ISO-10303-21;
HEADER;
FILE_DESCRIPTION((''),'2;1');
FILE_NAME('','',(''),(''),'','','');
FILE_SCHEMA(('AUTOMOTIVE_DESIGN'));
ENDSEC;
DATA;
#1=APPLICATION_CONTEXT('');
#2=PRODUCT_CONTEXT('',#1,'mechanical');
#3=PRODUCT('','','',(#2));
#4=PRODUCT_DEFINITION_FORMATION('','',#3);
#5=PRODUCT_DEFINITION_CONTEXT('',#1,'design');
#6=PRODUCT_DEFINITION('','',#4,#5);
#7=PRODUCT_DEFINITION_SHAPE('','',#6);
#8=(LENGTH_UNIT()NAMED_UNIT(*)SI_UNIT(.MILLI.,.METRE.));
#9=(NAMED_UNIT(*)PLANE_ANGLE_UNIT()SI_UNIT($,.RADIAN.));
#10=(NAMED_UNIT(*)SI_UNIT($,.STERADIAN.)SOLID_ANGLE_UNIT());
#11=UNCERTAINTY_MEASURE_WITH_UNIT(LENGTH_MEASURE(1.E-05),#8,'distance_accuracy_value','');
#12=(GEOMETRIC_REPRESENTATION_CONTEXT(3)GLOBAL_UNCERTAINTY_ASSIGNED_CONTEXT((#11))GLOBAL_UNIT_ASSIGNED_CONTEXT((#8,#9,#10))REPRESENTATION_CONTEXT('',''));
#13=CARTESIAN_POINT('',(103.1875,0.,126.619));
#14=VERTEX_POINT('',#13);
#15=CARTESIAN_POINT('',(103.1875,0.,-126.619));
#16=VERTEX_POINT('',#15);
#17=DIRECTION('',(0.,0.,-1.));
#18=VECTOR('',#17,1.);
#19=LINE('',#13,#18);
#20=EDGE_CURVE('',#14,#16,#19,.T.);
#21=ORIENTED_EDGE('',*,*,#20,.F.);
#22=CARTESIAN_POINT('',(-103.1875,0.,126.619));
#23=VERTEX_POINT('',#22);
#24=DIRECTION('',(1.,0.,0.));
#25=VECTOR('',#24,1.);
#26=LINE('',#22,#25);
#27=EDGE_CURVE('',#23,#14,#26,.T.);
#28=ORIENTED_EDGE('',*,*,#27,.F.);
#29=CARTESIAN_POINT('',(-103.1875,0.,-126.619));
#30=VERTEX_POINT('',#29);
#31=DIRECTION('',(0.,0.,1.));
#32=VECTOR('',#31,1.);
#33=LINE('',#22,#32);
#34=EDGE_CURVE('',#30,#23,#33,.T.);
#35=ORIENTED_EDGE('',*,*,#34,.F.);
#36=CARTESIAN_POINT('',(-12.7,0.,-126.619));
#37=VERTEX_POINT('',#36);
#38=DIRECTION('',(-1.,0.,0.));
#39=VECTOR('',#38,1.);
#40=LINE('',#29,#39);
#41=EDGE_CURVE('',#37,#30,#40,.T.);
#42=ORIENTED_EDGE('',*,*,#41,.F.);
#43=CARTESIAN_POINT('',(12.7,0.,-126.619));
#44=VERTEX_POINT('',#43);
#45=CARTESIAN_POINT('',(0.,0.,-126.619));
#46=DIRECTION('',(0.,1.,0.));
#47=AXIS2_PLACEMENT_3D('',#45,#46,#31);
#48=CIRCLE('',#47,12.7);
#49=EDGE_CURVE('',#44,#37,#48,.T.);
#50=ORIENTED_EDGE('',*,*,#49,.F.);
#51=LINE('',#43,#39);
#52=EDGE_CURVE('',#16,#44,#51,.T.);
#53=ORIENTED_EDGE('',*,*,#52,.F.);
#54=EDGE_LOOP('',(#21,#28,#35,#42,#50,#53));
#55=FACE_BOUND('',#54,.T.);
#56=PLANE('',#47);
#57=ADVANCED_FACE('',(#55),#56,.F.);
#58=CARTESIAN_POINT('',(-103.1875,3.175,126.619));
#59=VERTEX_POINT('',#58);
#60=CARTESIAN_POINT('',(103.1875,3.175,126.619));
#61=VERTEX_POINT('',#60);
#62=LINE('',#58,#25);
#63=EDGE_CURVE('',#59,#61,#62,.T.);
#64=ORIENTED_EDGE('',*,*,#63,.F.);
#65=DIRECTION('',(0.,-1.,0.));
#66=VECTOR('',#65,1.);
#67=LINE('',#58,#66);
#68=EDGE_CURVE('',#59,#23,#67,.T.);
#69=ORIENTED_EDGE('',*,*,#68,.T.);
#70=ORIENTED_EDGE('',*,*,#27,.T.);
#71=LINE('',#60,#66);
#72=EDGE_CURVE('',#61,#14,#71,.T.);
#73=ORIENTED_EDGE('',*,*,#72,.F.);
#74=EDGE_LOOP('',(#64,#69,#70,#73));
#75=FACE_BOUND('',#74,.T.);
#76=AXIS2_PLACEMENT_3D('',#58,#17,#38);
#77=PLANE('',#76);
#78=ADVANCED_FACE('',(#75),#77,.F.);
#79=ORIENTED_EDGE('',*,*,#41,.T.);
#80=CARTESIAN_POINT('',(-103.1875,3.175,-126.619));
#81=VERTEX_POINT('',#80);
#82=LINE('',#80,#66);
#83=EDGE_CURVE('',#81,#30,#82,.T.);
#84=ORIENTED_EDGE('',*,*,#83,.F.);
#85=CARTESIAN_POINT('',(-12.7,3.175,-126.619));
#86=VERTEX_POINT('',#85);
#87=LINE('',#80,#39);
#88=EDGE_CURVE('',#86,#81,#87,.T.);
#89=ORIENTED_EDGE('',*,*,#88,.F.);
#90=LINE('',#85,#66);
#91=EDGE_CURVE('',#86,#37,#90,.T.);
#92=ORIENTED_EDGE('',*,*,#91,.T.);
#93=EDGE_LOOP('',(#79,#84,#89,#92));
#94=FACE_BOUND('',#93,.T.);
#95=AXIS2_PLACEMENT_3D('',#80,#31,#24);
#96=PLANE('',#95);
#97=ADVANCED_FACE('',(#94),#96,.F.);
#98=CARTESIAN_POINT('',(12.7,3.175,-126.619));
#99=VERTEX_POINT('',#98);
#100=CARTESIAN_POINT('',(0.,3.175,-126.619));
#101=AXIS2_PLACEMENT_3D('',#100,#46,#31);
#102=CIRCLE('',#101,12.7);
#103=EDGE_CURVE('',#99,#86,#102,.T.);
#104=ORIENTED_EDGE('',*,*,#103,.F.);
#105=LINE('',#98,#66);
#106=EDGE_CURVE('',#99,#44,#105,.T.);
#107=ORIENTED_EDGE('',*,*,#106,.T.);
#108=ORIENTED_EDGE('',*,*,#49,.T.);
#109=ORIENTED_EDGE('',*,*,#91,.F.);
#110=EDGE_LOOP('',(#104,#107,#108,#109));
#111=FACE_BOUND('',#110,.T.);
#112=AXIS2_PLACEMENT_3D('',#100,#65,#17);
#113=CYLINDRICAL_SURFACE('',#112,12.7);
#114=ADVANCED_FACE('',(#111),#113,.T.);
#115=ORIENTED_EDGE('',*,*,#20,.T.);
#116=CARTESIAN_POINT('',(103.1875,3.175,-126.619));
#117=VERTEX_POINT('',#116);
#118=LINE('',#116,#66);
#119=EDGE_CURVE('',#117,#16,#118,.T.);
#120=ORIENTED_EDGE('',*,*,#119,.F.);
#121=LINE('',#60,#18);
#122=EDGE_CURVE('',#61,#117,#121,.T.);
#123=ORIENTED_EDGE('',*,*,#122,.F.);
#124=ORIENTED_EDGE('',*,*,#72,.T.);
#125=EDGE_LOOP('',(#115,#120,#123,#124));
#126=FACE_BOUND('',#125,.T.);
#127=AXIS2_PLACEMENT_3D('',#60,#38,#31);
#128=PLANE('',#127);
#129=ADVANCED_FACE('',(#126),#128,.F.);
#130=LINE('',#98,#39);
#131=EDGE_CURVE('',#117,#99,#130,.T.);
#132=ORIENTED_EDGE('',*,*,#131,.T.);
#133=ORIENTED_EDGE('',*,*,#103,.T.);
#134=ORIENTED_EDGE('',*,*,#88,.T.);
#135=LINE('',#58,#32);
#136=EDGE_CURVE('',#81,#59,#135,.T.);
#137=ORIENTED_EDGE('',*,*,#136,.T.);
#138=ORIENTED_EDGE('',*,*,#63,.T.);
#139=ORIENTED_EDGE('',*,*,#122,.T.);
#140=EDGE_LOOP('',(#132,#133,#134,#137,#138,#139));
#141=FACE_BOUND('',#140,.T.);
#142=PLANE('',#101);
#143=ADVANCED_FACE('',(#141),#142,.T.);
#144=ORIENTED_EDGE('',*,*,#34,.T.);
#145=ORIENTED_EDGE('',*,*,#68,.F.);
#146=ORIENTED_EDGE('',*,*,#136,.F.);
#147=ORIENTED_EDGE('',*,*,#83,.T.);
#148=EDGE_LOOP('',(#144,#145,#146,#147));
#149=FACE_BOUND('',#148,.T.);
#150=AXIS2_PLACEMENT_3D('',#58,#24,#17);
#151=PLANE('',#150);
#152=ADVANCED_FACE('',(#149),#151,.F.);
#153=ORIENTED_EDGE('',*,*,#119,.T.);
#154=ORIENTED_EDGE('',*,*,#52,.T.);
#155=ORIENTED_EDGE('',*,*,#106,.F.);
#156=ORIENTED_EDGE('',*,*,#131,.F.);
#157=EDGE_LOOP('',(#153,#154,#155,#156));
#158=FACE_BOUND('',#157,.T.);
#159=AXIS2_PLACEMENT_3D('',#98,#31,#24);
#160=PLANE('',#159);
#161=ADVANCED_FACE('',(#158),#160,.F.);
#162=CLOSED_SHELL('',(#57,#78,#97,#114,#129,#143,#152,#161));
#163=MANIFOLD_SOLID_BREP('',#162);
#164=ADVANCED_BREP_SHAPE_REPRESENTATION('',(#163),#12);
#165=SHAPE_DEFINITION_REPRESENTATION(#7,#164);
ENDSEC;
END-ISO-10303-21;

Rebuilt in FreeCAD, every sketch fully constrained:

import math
import FreeCAD as App
import Part
import Sketcher

V = App.Vector
Q = App.Units.Quantity

doc = App.newDocument("Part")
params = doc.addObject("Spreadsheet::Sheet", "Params")
for row, (alias, value) in enumerate([
    ("sketch1_radius", "0.5 in"),
    ("sketch1_height", "9.97 in"),
    ("sketch1_width", "3.5625 in"),
    ("pad1_length", "0.125 in"),
], start=1):
    params.set(f"A{row}", alias)
    params.set(f"B{row}", "=" + value)
    params.setAlias(f"B{row}", alias)

body = doc.addObject("PartDesign::Body", "Body")

sketch1 = body.newObject("Sketcher::SketchObject", "Sketch")
sketch1.AttachmentSupport = (doc.getObject("XZ_Plane"), [""])
sketch1.MapMode = "FlatFace"
sketch1.addGeometry([
    Part.LineSegment(V(103, -127, 0), V(13, -127, 0)),
    Part.ArcOfCircle(Part.Circle(V(0, -127, 0), V(0, 0, 1), 13), math.radians(180), math.radians(360)),
    Part.LineSegment(V(-13, -127, 0), V(-103, -127, 0)),
    Part.LineSegment(V(-103, -127, 0), V(-103, 127, 0)),
    Part.LineSegment(V(-103, 127, 0), V(103, 127, 0)),
    Part.LineSegment(V(103, 127, 0), V(103, -127, 0)),
], False)
sketch1.addConstraint([
    Sketcher.Constraint("Coincident", 0, 2, 1, 2),
    Sketcher.Constraint("Coincident", 1, 1, 2, 1),
    Sketcher.Constraint("Coincident", 2, 2, 3, 1),
    Sketcher.Constraint("Coincident", 3, 2, 4, 1),
    Sketcher.Constraint("Coincident", 4, 2, 5, 1),
    Sketcher.Constraint("Coincident", 5, 2, 0, 1),
    Sketcher.Constraint("Horizontal", 0),
    Sketcher.Constraint("Horizontal", 2),
    Sketcher.Constraint("Vertical", 3),
    Sketcher.Constraint("Horizontal", 4),
    Sketcher.Constraint("Vertical", 5),
    Sketcher.Constraint("Symmetric", 2, 2, 4, 2, -1, 1),
    Sketcher.Constraint("Symmetric", 0, 2, 1, 1, -2),
    Sketcher.Constraint("Horizontal", 1, 3, 0, 2),
    Sketcher.Constraint("Radius", 1, Q("0.5 in")),
    Sketcher.Constraint("DistanceY", 3, 1, 3, 2, Q("9.97 in")),
    Sketcher.Constraint("DistanceX", 0, 2, 0, 1, Q("3.5625 in")),
])
sketch1.setExpression("Constraints[14]", "Params.sketch1_radius")
sketch1.setExpression("Constraints[15]", "Params.sketch1_height")
sketch1.setExpression("Constraints[16]", "Params.sketch1_width")
pad1 = body.newObject("PartDesign::Pad", "Pad")
pad1.Profile = sketch1
pad1.setExpression("Length", "Params.pad1_length")
pad1.Reversed = True

doc.recompute()
